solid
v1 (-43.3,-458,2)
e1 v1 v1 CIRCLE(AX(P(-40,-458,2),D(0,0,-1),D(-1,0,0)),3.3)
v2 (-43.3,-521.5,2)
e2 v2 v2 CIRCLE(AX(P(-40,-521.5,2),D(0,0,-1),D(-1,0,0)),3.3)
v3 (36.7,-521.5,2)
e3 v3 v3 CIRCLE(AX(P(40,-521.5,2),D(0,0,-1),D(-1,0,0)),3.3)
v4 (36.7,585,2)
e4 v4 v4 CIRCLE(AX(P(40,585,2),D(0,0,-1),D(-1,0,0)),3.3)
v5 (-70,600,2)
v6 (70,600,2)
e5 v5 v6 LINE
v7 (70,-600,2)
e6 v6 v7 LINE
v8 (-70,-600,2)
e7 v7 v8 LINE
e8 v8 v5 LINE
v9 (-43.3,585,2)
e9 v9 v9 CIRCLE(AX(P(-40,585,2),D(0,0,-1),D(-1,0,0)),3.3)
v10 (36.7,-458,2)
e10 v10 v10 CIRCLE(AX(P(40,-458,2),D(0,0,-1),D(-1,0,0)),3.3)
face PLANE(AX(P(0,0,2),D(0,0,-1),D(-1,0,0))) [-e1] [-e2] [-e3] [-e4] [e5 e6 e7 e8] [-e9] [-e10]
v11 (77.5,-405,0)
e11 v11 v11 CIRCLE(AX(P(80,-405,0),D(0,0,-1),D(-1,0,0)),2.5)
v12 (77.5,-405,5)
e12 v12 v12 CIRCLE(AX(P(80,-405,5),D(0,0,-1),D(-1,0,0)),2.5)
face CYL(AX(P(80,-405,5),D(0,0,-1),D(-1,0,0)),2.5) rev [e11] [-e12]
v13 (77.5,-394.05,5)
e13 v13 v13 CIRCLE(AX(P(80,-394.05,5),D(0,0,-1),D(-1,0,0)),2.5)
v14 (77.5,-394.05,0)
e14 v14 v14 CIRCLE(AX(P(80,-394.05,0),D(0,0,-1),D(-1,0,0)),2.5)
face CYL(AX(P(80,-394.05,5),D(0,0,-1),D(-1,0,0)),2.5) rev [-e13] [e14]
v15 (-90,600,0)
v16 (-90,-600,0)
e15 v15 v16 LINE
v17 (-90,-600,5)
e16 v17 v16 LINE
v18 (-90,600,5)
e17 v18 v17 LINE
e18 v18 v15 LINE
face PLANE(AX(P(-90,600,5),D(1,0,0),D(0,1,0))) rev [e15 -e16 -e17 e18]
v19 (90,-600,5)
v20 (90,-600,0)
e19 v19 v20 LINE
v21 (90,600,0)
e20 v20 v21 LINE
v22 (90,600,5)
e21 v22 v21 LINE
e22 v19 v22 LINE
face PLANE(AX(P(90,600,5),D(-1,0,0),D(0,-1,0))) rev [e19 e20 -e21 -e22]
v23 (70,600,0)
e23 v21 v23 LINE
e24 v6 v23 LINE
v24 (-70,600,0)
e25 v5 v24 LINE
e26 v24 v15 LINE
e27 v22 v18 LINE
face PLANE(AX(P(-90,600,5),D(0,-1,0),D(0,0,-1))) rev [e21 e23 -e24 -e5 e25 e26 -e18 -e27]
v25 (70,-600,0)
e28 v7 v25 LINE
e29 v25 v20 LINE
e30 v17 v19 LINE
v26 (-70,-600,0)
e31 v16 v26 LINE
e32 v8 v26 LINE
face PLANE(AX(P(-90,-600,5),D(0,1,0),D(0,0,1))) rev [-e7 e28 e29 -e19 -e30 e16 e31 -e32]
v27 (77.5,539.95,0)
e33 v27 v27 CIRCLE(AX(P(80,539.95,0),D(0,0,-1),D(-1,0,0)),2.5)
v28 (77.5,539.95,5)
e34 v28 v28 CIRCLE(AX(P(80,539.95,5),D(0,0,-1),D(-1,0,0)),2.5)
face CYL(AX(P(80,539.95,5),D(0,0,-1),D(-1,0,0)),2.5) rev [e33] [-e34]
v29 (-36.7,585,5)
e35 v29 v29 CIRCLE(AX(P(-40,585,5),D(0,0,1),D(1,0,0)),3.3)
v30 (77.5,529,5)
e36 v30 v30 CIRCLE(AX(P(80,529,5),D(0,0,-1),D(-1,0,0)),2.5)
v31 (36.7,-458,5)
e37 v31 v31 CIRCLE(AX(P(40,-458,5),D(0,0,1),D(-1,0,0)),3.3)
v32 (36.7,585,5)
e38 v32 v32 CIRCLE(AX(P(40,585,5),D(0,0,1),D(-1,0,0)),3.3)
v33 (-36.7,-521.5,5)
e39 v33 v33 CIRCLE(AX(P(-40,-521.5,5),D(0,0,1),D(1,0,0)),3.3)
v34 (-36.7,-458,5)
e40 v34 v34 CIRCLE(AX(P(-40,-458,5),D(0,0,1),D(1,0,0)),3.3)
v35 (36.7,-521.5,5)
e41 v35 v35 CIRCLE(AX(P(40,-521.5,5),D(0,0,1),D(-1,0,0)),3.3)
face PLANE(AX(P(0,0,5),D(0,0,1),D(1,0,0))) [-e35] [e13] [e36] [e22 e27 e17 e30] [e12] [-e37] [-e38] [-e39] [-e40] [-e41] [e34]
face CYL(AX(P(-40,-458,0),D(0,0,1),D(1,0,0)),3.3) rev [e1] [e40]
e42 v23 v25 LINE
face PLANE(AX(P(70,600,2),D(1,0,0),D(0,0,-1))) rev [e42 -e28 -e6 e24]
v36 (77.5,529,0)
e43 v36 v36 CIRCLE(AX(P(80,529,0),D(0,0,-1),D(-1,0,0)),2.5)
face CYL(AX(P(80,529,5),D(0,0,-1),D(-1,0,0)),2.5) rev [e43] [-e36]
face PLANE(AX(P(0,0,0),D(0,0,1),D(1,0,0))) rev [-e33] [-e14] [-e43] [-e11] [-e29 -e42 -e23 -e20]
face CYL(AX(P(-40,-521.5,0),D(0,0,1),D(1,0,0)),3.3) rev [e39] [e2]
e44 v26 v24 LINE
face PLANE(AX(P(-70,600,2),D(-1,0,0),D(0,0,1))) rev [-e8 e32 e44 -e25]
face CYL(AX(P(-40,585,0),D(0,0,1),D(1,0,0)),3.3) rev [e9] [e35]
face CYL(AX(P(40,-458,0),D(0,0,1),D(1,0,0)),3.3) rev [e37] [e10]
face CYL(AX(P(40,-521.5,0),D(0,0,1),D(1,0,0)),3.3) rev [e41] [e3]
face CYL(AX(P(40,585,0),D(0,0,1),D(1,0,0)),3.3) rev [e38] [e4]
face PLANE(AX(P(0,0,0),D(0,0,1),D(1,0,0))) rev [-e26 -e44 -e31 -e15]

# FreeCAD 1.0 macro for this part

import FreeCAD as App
import Part
import Sketcher

V = App.Vector

doc = App.newDocument("Part")
body = doc.addObject("PartDesign::Body", "Body")

# Sketch on XY plane
sketch1 = doc.addObject("Sketcher::SketchObject", "Sketch")
body.addObject(sketch1)
sketch1.AttachmentSupport = (doc.XY_Plane, [""])
sketch1.MapMode = "FlatFace"
sketch1.addGeometry(Part.LineSegment(V(-90, 600, 0), V(-90, -600, 0)), False)
sketch1.addGeometry(Part.LineSegment(V(-90, -600, 0), V(90, -600, 0)), False)
sketch1.addGeometry(Part.LineSegment(V(90, -600, 0), V(90, 600, 0)), False)
sketch1.addGeometry(Part.LineSegment(V(90, 600, 0), V(-90, 600, 0)), False)
sketch1.addConstraint(Sketcher.Constraint("Coincident", 0, 2, 1, 1))
sketch1.addConstraint(Sketcher.Constraint("Coincident", 1, 2, 2, 1))
sketch1.addConstraint(Sketcher.Constraint("Coincident", 2, 2, 3, 1))
sketch1.addConstraint(Sketcher.Constraint("Coincident", 3, 2, 0, 1))
sketch1.addConstraint(Sketcher.Constraint("Vertical", 0))
sketch1.addConstraint(Sketcher.Constraint("Horizontal", 1))
sketch1.addConstraint(Sketcher.Constraint("Vertical", 2))
sketch1.addConstraint(Sketcher.Constraint("Horizontal", 3))
sketch1.addConstraint(Sketcher.Constraint("Symmetric", 0, 2, 2, 2, -1, 1))
sketch1.addConstraint(Sketcher.Constraint("DistanceX", 1, 1, 1, 2, 180.0))
sketch1.addConstraint(Sketcher.Constraint("DistanceY", 0, 2, 0, 1, 1200.0))
pad1 = doc.addObject("PartDesign::Pad", "Pad")
body.addObject(pad1)
pad1.Profile = sketch1
pad1.Length = 5

# Sketch on XY plane
sketch2 = doc.addObject("Sketcher::SketchObject", "Sketch001")
body.addObject(sketch2)
sketch2.AttachmentSupport = (doc.XY_Plane, [""])
sketch2.MapMode = "FlatFace"
sketch2.addGeometry(Part.LineSegment(V(70, 600, 0), V(70, -600, 0)), False)
sketch2.addGeometry(Part.LineSegment(V(70, -600, 0), V(-70, -600, 0)), False)
sketch2.addGeometry(Part.LineSegment(V(-70, -600, 0), V(-70, 600, 0)), False)
sketch2.addGeometry(Part.LineSegment(V(-70, 600, 0), V(70, 600, 0)), False)
sketch2.addConstraint(Sketcher.Constraint("Coincident", 0, 2, 1, 1))
sketch2.addConstraint(Sketcher.Constraint("Coincident", 1, 2, 2, 1))
sketch2.addConstraint(Sketcher.Constraint("Coincident", 2, 2, 3, 1))
sketch2.addConstraint(Sketcher.Constraint("Coincident", 3, 2, 0, 1))
sketch2.addConstraint(Sketcher.Constraint("Vertical", 0))
sketch2.addConstraint(Sketcher.Constraint("Horizontal", 1))
sketch2.addConstraint(Sketcher.Constraint("Vertical", 2))
sketch2.addConstraint(Sketcher.Constraint("Horizontal", 3))
sketch2.addConstraint(Sketcher.Constraint("Symmetric", 0, 2, 2, 2, -1, 1))
sketch2.addConstraint(Sketcher.Constraint("DistanceX", 1, 2, 1, 1, 140.0))
sketch2.addConstraint(Sketcher.Constraint("DistanceY", 0, 2, 0, 1, 1200.0))
pocket1 = doc.addObject("PartDesign::Pocket", "Pocket")
body.addObject(pocket1)
pocket1.Profile = sketch2
pocket1.Length = 2
pocket1.Reversed = True

# Sketch on XY plane
sketch3 = doc.addObject("Sketcher::SketchObject", "Sketch002")
body.addObject(sketch3)
sketch3.AttachmentSupport = (doc.XY_Plane, [""])
sketch3.MapMode = "FlatFace"
sketch3.AttachmentOffset = App.Placement(V(0, 0, 5), App.Rotation())
sketch3.addGeometry(Part.Circle(V(-40, -521.5, 0), V(0, 0, 1), 3.3), False)
sketch3.addGeometry(Part.Circle(V(-40, -458, 0), V(0, 0, 1), 3.3), False)
sketch3.addGeometry(Part.Circle(V(-40, 585, 0), V(0, 0, 1), 3.3), False)
sketch3.addGeometry(Part.Circle(V(40, 585, 0), V(0, 0, 1), 3.3), False)
sketch3.addGeometry(Part.Circle(V(40, -458, 0), V(0, 0, 1), 3.3), False)
sketch3.addGeometry(Part.Circle(V(40, -521.5, 0), V(0, 0, 1), 3.3), False)
sketch3.addConstraint(Sketcher.Constraint("Equal", 0, 1))
sketch3.addConstraint(Sketcher.Constraint("Equal", 1, 2))
sketch3.addConstraint(Sketcher.Constraint("Equal", 2, 3))
sketch3.addConstraint(Sketcher.Constraint("Equal", 3, 4))
sketch3.addConstraint(Sketcher.Constraint("Equal", 4, 5))
sketch3.addConstraint(Sketcher.Constraint("Symmetric", 2, 3, 3, 3, -2))
sketch3.addConstraint(Sketcher.Constraint("Symmetric", 1, 3, 4, 3, -2))
sketch3.addConstraint(Sketcher.Constraint("Symmetric", 0, 3, 5, 3, -2))
sketch3.addConstraint(Sketcher.Constraint("Vertical", 0, 3, 1, 3))
sketch3.addConstraint(Sketcher.Constraint("Vertical", 1, 3, 2, 3))
sketch3.addConstraint(Sketcher.Constraint("Diameter", 0, 6.6))
sketch3.addConstraint(Sketcher.Constraint("DistanceX", 0, 3, -1, 1, 40.0))
sketch3.addConstraint(Sketcher.Constraint("DistanceY", 1, 3, -1, 1, 458.0))
sketch3.addConstraint(Sketcher.Constraint("DistanceY", -1, 1, 2, 3, 585.0))
sketch3.addConstraint(Sketcher.Constraint("DistanceY", 0, 3, -1, 1, 521.5))
pocket2 = doc.addObject("PartDesign::Pocket", "Pocket001")
body.addObject(pocket2)
pocket2.Profile = sketch3
pocket2.Type = "ThroughAll"

# Sketch on XY plane
sketch4 = doc.addObject("Sketcher::SketchObject", "Sketch003")
body.addObject(sketch4)
sketch4.AttachmentSupport = (doc.XY_Plane, [""])
sketch4.MapMode = "FlatFace"
sketch4.addGeometry(Part.Circle(V(80, 540, 0), V(0, 0, 1), 2.5), False)
sketch4.addGeometry(Part.Circle(V(80, 529, 0), V(0, 0, 1), 2.5), False)
sketch4.addGeometry(Part.Circle(V(80, -394.1, 0), V(0, 0, 1), 2.5), False)
sketch4.addGeometry(Part.Circle(V(80, -405, 0), V(0, 0, 1), 2.5), False)
sketch4.addConstraint(Sketcher.Constraint("Equal", 0, 1))
sketch4.addConstraint(Sketcher.Constraint("Equal", 1, 2))
sketch4.addConstraint(Sketcher.Constraint("Equal", 2, 3))
sketch4.addConstraint(Sketcher.Constraint("Vertical", 0, 3, 1, 3))
sketch4.addConstraint(Sketcher.Constraint("Vertical", 1, 3, 2, 3))
sketch4.addConstraint(Sketcher.Constraint("Vertical", 2, 3, 3, 3))
sketch4.addConstraint(Sketcher.Constraint("Diameter", 0, 5.0))
sketch4.addConstraint(Sketcher.Constraint("DistanceX", -1, 1, 0, 3, 80.0))
sketch4.addConstraint(Sketcher.Constraint("DistanceY", -1, 1, 1, 3, 529.0))
sketch4.addConstraint(Sketcher.Constraint("DistanceY", 3, 3, -1, 1, 405.0))
sketch4.addConstraint(Sketcher.Constraint("DistanceY", 2, 3, 0, 3, 934.0))
sketch4.addConstraint(Sketcher.Constraint("DistanceY", -1, 1, 0, 3, 539.95))
pocket3 = doc.addObject("PartDesign::Pocket", "Pocket002")
body.addObject(pocket3)
pocket3.Profile = sketch4
pocket3.Type = "ThroughAll"
pocket3.Reversed = True

doc.recompute()
